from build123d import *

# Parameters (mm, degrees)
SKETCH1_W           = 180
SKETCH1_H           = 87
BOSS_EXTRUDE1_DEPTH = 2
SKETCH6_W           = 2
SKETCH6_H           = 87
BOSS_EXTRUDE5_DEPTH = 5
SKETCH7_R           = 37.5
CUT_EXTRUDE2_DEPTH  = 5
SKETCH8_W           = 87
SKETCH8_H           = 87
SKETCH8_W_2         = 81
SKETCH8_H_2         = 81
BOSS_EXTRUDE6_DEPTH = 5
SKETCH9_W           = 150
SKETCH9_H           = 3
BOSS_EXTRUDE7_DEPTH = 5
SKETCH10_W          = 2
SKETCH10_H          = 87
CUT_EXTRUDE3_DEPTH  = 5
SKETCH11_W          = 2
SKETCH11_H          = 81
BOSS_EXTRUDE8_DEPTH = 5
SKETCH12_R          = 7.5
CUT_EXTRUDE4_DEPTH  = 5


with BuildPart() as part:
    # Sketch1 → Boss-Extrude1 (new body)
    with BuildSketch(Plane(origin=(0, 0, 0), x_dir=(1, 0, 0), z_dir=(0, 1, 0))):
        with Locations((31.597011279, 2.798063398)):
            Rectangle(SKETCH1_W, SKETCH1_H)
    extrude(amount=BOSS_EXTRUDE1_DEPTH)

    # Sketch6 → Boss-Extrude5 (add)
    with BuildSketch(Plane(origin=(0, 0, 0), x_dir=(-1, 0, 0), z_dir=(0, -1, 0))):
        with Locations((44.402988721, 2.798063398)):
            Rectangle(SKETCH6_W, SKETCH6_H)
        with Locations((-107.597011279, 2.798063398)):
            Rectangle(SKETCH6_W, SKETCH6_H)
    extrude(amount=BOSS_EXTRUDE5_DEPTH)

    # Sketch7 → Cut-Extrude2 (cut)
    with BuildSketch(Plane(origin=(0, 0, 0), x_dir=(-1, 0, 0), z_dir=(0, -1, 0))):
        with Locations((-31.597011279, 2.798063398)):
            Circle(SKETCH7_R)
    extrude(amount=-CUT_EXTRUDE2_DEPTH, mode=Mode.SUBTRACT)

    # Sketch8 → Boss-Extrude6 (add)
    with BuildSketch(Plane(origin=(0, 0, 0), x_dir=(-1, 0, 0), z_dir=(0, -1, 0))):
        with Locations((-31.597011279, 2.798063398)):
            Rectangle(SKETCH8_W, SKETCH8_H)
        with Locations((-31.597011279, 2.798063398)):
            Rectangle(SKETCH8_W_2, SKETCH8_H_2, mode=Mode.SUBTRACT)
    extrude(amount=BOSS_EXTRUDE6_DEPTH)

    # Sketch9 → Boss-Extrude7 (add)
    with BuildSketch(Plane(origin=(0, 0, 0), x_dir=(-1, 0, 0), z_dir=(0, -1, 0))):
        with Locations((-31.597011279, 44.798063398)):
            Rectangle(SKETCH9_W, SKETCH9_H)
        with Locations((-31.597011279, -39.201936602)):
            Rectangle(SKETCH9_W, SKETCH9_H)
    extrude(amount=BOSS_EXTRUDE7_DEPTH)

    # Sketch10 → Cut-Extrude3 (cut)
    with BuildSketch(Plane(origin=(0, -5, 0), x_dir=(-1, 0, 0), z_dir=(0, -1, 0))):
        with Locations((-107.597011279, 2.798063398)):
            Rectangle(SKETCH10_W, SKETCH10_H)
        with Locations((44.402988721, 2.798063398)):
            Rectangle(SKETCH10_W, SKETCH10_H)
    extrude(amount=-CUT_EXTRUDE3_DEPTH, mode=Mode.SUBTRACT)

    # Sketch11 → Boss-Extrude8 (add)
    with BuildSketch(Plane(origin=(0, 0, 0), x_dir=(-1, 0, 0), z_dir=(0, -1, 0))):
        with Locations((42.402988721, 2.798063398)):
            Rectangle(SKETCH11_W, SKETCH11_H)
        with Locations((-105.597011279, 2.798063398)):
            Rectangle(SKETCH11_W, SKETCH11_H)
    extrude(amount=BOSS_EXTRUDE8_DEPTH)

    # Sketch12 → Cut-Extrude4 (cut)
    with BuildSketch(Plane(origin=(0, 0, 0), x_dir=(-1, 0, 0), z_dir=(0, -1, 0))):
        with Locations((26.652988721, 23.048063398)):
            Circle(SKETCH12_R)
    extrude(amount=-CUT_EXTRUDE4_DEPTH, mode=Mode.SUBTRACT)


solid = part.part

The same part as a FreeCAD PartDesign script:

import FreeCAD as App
import Part
import Sketcher

V = App.Vector


def add_polygon(sketch, points):
    """Adds a closed chain of lines whose ends are joined by coincident constraints."""
    first, n = sketch.GeometryCount, len(points)
    for a, b in zip(points, points[1:] + points[:1]):
        sketch.addGeometry(Part.LineSegment(App.Vector(*a, 0), App.Vector(*b, 0)), False)
    for i in range(n):
        sketch.addConstraint(Sketcher.Constraint("Coincident", first + i, 2, first + (i + 1) % n, 1))

doc = App.newDocument("Part")
body = doc.addObject("PartDesign::Body", "Body")

# Sketch on XZ plane
sketch1 = body.newObject("Sketcher::SketchObject", "Sketch")
sketch1.AttachmentSupport = (doc.getObject("XZ_Plane"), [""])
sketch1.MapMode = "FlatFace"
add_polygon(sketch1, [(-58, -46), (-58, 41), (122, 41), (122, -46)])  # lines 0-3
sketch1.addConstraint([
    Sketcher.Constraint("Vertical", 0),
    Sketcher.Constraint("Horizontal", 1),
    Sketcher.Constraint("Vertical", 2),
    Sketcher.Constraint("Horizontal", 3),
    Sketcher.Constraint("DistanceX", 1, 1, 1, 2, 180.0),
    Sketcher.Constraint("DistanceY", 0, 1, 0, 2, 87.0),
    Sketcher.Constraint("DistanceX", 0, 2, -1, 1, 58.402989),
    Sketcher.Constraint("DistanceY", -1, 1, 0, 2, 40.701937),
])
pad1 = body.newObject("PartDesign::Pad", "Pad")
pad1.Profile = sketch1
pad1.Length = 2
pad1.Reversed = True

# Sketch on XZ plane
sketch2 = body.newObject("Sketcher::SketchObject", "Sketch001")
sketch2.AttachmentSupport = (doc.getObject("XZ_Plane"), [""])
sketch2.MapMode = "FlatFace"
add_polygon(sketch2, [(-43.4, -46.3), (-43.4, 40.7), (-45.4, 40.7), (-45.4, -46.3)])  # lines 0-3
add_polygon(sketch2, [(108.6, -46.3), (108.6, 40.7), (106.6, 40.7), (106.6, -46.3)])  # lines 4-7
sketch2.addConstraint([
    Sketcher.Constraint("Vertical", 0),
    Sketcher.Constraint("Horizontal", 1),
    Sketcher.Constraint("Vertical", 2),
    Sketcher.Constraint("Horizontal", 3),
    Sketcher.Constraint("Vertical", 4),
    Sketcher.Constraint("Horizontal", 5),
    Sketcher.Constraint("Vertical", 6),
    Sketcher.Constraint("Horizontal", 7),
    Sketcher.Constraint("Horizontal", 1, 2, 4, 2),
    Sketcher.Constraint("Horizontal", 3, 2, 6, 2),
    Sketcher.Constraint("Equal", 3, 5),
    Sketcher.Constraint("DistanceX", 1, 2, 1, 1, 2.0),
    Sketcher.Constraint("DistanceY", 0, 1, 0, 2, 87.0),
    Sketcher.Constraint("DistanceX", 0, 2, 4, 2, 152.0),
    Sketcher.Constraint("DistanceX", 0, 2, -1, 1, 43.402989),
    Sketcher.Constraint("DistanceY", -1, 1, 0, 2, 40.701937),
])
pad2 = body.newObject("PartDesign::Pad", "Pad001")
pad2.Profile = sketch2
pad2.Length = 5

# Sketch on XZ plane
sketch3 = body.newObject("Sketcher::SketchObject", "Sketch002")
sketch3.AttachmentSupport = (doc.getObject("XZ_Plane"), [""])
sketch3.MapMode = "FlatFace"
sketch3.addGeometry(Part.Circle(V(32, -3, 0), V(0, 0, 1), 38), False)
sketch3.addConstraint([
    Sketcher.Constraint("Diameter", 0, 75.0),
    Sketcher.Constraint("DistanceX", -1, 1, 0, 3, 31.597011),
    Sketcher.Constraint("DistanceY", 0, 3, -1, 1, 2.798063),
])
pocket1 = body.newObject("PartDesign::Pocket", "Pocket")
pocket1.Profile = sketch3
pocket1.Length = 5

# Sketch on XZ plane
sketch4 = body.newObject("Sketcher::SketchObject", "Sketch003")
sketch4.AttachmentSupport = (doc.getObject("XZ_Plane"), [""])
sketch4.MapMode = "FlatFace"
add_polygon(sketch4, [(75, -46), (75, 41), (-12, 41), (-12, -46)])  # lines 0-3
add_polygon(sketch4, [(-9, 38), (72, 38), (72, -43), (-9, -43)])  # lines 4-7
sketch4.addConstraint([
    Sketcher.Constraint("Vertical", 0),
    Sketcher.Constraint("Horizontal", 1),
    Sketcher.Constraint("Vertical", 2),
    Sketcher.Constraint("Horizontal", 3),
    Sketcher.Constraint("Horizontal", 4),
    Sketcher.Constraint("Vertical", 5),
    Sketcher.Constraint("Horizontal", 6),
    Sketcher.Constraint("Vertical", 7),
    Sketcher.Constraint("Equal", 3, 0),
    Sketcher.Constraint("Equal", 6, 5),
    Sketcher.Constraint("DistanceX", 1, 2, 1, 1, 87.0),
    Sketcher.Constraint("DistanceX", 4, 1, 4, 2, 81.0),
    Sketcher.Constraint("DistanceX", 4, 2, 0, 2, 3.0),
    Sketcher.Constraint("DistanceY", 4, 2, 0, 2, 3.0),
    Sketcher.Constraint("DistanceX", -1, 1, 0, 2, 75.097011),
    Sketcher.Constraint("DistanceY", -1, 1, 0, 2, 40.701937),
])
pad3 = body.newObject("PartDesign::Pad", "Pad002")
pad3.Profile = sketch4
pad3.Length = 5

# Sketch on XZ plane
sketch5 = body.newObject("Sketcher::SketchObject", "Sketch004")
sketch5.AttachmentSupport = (doc.getObject("XZ_Plane"), [""])
sketch5.MapMode = "FlatFace"
add_polygon(sketch5, [(106.6, -46.3), (106.6, -43.3), (-43.4, -43.3), (-43.4, -46.3)])  # lines 0-3
add_polygon(sketch5, [(106.6, 37.7), (106.6, 40.7), (-43.4, 40.7), (-43.4, 37.7)])  # lines 4-7
sketch5.addConstraint([
    Sketcher.Constraint("Vertical", 0),
    Sketcher.Constraint("Horizontal", 1),
    Sketcher.Constraint("Vertical", 2),
    Sketcher.Constraint("Horizontal", 3),
    Sketcher.Constraint("Vertical", 4),
    Sketcher.Constraint("Horizontal", 5),
    Sketcher.Constraint("Vertical", 6),
    Sketcher.Constraint("Horizontal", 7),
    Sketcher.Constraint("Vertical", 3, 2, 4, 2),
    Sketcher.Constraint("Vertical", 2, 2, 5, 2),
    Sketcher.Constraint("Equal", 2, 4),
    Sketcher.Constraint("DistanceX", 1, 2, 1, 1, 150.0),
    Sketcher.Constraint("DistanceY", 0, 1, 0, 2, 3.0),
    Sketcher.Constraint("DistanceY", 0, 2, 4, 2, 84.0),
    Sketcher.Constraint("DistanceX", -1, 1, 0, 2, 106.597011),
    Sketcher.Constraint("DistanceY", 0, 2, -1, 1, 43.298063),
])
pad4 = body.newObject("PartDesign::Pad", "Pad003")
pad4.Profile = sketch5
pad4.Length = 5

# Sketch on XZ plane
sketch6 = body.newObject("Sketcher::SketchObject", "Sketch005")
sketch6.AttachmentSupport = (doc.getObject("XZ_Plane"), [""])
sketch6.MapMode = "FlatFace"
sketch6.AttachmentOffset = App.Placement(V(0, 0, 5), App.Rotation())
add_polygon(sketch6, [(108.6, -46.3), (108.6, 40.7), (106.6, 40.7), (106.6, -46.3)])  # lines 0-3
add_polygon(sketch6, [(-43.4, -46.3), (-43.4, 40.7), (-45.4, 40.7), (-45.4, -46.3)])  # lines 4-7
sketch6.addConstraint([
    Sketcher.Constraint("Vertical", 0),
    Sketcher.Constraint("Horizontal", 1),
    Sketcher.Constraint("Vertical", 2),
    Sketcher.Constraint("Horizontal", 3),
    Sketcher.Constraint("Vertical", 4),
    Sketcher.Constraint("Horizontal", 5),
    Sketcher.Constraint("Vertical", 6),
    Sketcher.Constraint("Horizontal", 7),
    Sketcher.Constraint("Horizontal", 1, 2, 4, 2),
    Sketcher.Constraint("Horizontal", 3, 2, 6, 2),
    Sketcher.Constraint("Equal", 3, 5),
    Sketcher.Constraint("DistanceX", 1, 2, 1, 1, 2.0),
    Sketcher.Constraint("DistanceY", 0, 1, 0, 2, 87.0),
    Sketcher.Constraint("DistanceX", 4, 2, 1, 2, 150.0),
    Sketcher.Constraint("DistanceX", -1, 1, 0, 2, 108.597011),
    Sketcher.Constraint("DistanceY", -1, 1, 0, 2, 40.701937),
])
pocket2 = body.newObject("PartDesign::Pocket", "Pocket001")
pocket2.Profile = sketch6
pocket2.Length = 5

# Sketch on XZ plane
sketch7 = body.newObject("Sketcher::SketchObject", "Sketch006")
sketch7.AttachmentSupport = (doc.getObject("XZ_Plane"), [""])
sketch7.MapMode = "FlatFace"
add_polygon(sketch7, [(-41.4, -43.3), (-41.4, 37.7), (-43.4, 37.7), (-43.4, -43.3)])  # lines 0-3
add_polygon(sketch7, [(106.6, -43.3), (106.6, 37.7), (104.6, 37.7), (104.6, -43.3)])  # lines 4-7
sketch7.addConstraint([
    Sketcher.Constraint("Vertical", 0),
    Sketcher.Constraint("Horizontal", 1),
    Sketcher.Constraint("Vertical", 2),
    Sketcher.Constraint("Horizontal", 3),
    Sketcher.Constraint("Vertical", 4),
    Sketcher.Constraint("Horizontal", 5),
    Sketcher.Constraint("Vertical", 6),
    Sketcher.Constraint("Horizontal", 7),
    Sketcher.Constraint("Horizontal", 1, 2, 4, 2),
    Sketcher.Constraint("Horizontal", 3, 2, 6, 2),
    Sketcher.Constraint("Equal", 3, 5),
    Sketcher.Constraint("DistanceX", 1, 2, 1, 1, 2.0),
    Sketcher.Constraint("DistanceY", 0, 1, 0, 2, 81.0),
    Sketcher.Constraint("DistanceX", 0, 2, 4, 2, 148.0),
    Sketcher.Constraint("DistanceX", 0, 2, -1, 1, 41.402989),
    Sketcher.Constraint("DistanceY", -1, 1, 0, 2, 37.701937),
])
pad5 = body.newObject("PartDesign::Pad", "Pad004")
pad5.Profile = sketch7
pad5.Length = 5

# Sketch on XZ plane
sketch8 = body.newObject("Sketcher::SketchObject", "Sketch007")
sketch8.AttachmentSupport = (doc.getObject("XZ_Plane"), [""])
sketch8.MapMode = "FlatFace"
sketch8.addGeometry(Part.Circle(V(-27, -23, 0), V(0, 0, 1), 8), False)
sketch8.addConstraint([
    Sketcher.Constraint("Diameter", 0, 15.0),
    Sketcher.Constraint("DistanceX", 0, 3, -1, 1, 26.652989),
    Sketcher.Constraint("DistanceY", 0, 3, -1, 1, 23.048063),
])
pocket3 = body.newObject("PartDesign::Pocket", "Pocket002")
pocket3.Profile = sketch8
pocket3.Length = 5

doc.recompute()
